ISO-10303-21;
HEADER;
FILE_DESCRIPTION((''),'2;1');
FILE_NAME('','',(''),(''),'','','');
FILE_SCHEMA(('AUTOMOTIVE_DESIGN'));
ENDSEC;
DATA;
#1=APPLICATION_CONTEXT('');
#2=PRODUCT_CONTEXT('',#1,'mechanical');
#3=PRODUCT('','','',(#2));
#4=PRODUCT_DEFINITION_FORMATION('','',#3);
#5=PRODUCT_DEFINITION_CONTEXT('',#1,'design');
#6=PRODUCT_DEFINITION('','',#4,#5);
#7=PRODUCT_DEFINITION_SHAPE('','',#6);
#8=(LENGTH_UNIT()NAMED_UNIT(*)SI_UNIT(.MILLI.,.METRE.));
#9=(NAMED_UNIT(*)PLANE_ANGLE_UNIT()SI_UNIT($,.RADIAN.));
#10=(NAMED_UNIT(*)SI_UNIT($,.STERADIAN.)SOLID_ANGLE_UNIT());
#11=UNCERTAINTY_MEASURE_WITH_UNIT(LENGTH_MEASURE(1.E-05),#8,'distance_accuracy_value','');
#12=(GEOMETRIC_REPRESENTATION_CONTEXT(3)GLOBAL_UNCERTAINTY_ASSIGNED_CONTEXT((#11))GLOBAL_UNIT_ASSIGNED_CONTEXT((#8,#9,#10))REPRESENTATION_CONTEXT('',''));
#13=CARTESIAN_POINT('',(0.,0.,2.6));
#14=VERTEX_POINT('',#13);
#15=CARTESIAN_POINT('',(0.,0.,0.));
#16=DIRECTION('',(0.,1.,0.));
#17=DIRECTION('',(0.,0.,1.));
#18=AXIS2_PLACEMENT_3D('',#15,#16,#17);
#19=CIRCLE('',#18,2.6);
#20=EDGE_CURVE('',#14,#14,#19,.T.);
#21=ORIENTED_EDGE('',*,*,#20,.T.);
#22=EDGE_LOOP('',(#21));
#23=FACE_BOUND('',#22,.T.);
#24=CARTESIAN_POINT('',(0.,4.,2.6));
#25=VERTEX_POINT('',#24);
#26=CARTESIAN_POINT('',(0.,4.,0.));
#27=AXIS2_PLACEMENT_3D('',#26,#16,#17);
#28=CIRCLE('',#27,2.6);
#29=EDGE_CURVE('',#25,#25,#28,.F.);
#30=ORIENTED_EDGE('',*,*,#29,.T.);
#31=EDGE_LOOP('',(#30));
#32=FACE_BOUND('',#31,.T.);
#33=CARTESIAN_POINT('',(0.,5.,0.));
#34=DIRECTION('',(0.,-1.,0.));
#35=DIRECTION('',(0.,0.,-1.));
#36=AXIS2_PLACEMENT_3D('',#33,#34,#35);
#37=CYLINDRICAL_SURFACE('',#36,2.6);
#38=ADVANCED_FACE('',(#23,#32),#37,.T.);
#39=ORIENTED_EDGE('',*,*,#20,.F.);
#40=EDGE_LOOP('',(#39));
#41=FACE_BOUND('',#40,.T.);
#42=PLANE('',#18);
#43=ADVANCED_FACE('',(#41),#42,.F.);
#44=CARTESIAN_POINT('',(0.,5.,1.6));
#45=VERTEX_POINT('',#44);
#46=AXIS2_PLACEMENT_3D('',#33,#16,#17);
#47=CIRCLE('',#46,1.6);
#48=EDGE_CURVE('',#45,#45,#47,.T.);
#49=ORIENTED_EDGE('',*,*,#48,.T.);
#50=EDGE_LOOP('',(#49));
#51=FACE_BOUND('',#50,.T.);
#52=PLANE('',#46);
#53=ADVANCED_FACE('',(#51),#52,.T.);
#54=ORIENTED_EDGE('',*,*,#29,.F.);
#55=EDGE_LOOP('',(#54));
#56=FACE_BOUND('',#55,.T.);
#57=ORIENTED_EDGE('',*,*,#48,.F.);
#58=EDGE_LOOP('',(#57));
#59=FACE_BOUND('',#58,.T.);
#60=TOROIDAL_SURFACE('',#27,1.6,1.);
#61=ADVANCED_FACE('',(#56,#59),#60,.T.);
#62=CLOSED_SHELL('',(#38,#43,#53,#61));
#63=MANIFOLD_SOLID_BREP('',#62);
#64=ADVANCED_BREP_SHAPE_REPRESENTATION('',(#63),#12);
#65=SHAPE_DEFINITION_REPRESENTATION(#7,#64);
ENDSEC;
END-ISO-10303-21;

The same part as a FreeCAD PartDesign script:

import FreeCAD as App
import Part
import Sketcher

V = App.Vector
Q = App.Units.Quantity


def edges_at(feature, points):
    """Names of the edges that pass closest to the given points."""
    edges = feature.Shape.Edges
    near = lambda p: min(range(len(edges)), key=lambda i: edges[i].distToShape(Part.Vertex(*p))[0])
    return sorted({f"Edge{near(p) + 1}" for p in points})

doc = App.newDocument("Part")
body = doc.addObject("PartDesign::Body", "Body")

sketch1 = doc.addObject("Sketcher::SketchObject", "Sketch")
body.addObject(sketch1)
sketch1.AttachmentSupport = (doc.XZ_Plane, [""])
sketch1.MapMode = "FlatFace"
sketch1.addGeometry(Part.Circle(V(0, 0, 0), V(0, 0, 1), 2.6), False)
sketch1.addConstraint(Sketcher.Constraint("Coincident", 0, 3, -1, 1))
sketch1.addConstraint(Sketcher.Constraint("Diameter", 0, Q("5.2 mm")))
pad1 = doc.addObject("PartDesign::Pad", "Pad")
body.addObject(pad1)
pad1.Profile = sketch1
pad1.Length = 5
pad1.Reversed = True
doc.recompute()

fillet = doc.addObject("PartDesign::Fillet", "Fillet")
body.addObject(fillet)
fillet.Base = (pad1, edges_at(pad1, [(-2.6, 5, 0)]))
fillet.Radius = 1

doc.recompute()
